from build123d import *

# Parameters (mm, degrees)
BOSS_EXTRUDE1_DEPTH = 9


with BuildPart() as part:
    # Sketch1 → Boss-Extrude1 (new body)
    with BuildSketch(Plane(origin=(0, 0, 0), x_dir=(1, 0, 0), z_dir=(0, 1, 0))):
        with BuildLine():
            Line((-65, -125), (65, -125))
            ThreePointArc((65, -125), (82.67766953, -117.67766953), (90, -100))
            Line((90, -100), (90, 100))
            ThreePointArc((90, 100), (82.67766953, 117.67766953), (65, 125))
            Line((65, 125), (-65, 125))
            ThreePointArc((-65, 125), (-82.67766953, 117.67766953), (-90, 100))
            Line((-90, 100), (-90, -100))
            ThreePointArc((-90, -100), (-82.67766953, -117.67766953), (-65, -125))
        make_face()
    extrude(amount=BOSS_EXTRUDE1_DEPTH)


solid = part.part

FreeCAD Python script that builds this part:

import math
import FreeCAD as App
import Part
import Sketcher
from FreeCAD import Vector
Q = App.Units.Quantity

doc = App.newDocument("Part")
body = doc.addObject("PartDesign::Body", "Body")

# Sketch on XZ plane
sketch1 = body.newObject("Sketcher::SketchObject", "Sketch")
sketch1.AttachmentSupport = (doc.getObject("XZ_Plane"), [""])
sketch1.MapMode = "FlatFace"
sketch1.addGeometry([
    Part.LineSegment(Vector(-65, 125, 0), Vector(65, 125, 0)),  # 0
    Part.ArcOfCircle(Part.Circle(Vector(65, 100, 0), Vector(0, 0, 1), 25), math.radians(0), math.radians(90)),  # 1
    Part.LineSegment(Vector(90, 100, 0), Vector(90, -100, 0)),  # 2
    Part.ArcOfCircle(Part.Circle(Vector(65, -100, 0), Vector(0, 0, 1), 25), math.radians(-90), math.radians(0)),  # 3
    Part.LineSegment(Vector(65, -125, 0), Vector(-65, -125, 0)),  # 4
    Part.ArcOfCircle(Part.Circle(Vector(-65, -100, 0), Vector(0, 0, 1), 25), math.radians(180), math.radians(270)),  # 5
    Part.LineSegment(Vector(-90, -100, 0), Vector(-90, 100, 0)),  # 6
    Part.ArcOfCircle(Part.Circle(Vector(-65, 100, 0), Vector(0, 0, 1), 25), math.radians(90), math.radians(180)),  # 7
], False)
sketch1.addConstraint([
    Sketcher.Constraint("Tangent", 0, 2, 1, 2),
    Sketcher.Constraint("Tangent", 1, 1, 2, 1),
    Sketcher.Constraint("Tangent", 2, 2, 3, 2),
    Sketcher.Constraint("Tangent", 3, 1, 4, 1),
    Sketcher.Constraint("Tangent", 4, 2, 5, 2),
    Sketcher.Constraint("Tangent", 5, 1, 6, 1),
    Sketcher.Constraint("Tangent", 6, 2, 7, 2),
    Sketcher.Constraint("Tangent", 7, 1, 0, 1),
    Sketcher.Constraint("Horizontal", 0),
    Sketcher.Constraint("Vertical", 2),
    Sketcher.Constraint("Horizontal", 4),
    Sketcher.Constraint("Vertical", 6),
    Sketcher.Constraint("Equal", 1, 3),
    Sketcher.Constraint("Equal", 3, 5),
    Sketcher.Constraint("Equal", 5, 7),
    Sketcher.Constraint("Symmetric", 1, 3, 5, 3, -1, 1),
    Sketcher.Constraint("Radius", 1, Q("25 mm")),
    Sketcher.Constraint("DistanceX", 0, 1, 0, 2, Q("130 mm")),
    Sketcher.Constraint("DistanceY", 2, 2, 2, 1, Q("200 mm")),
])
pad1 = body.newObject("PartDesign::Pad", "Pad")
pad1.Profile = sketch1
pad1.Length = 9
pad1.Reversed = True

doc.recompute()
